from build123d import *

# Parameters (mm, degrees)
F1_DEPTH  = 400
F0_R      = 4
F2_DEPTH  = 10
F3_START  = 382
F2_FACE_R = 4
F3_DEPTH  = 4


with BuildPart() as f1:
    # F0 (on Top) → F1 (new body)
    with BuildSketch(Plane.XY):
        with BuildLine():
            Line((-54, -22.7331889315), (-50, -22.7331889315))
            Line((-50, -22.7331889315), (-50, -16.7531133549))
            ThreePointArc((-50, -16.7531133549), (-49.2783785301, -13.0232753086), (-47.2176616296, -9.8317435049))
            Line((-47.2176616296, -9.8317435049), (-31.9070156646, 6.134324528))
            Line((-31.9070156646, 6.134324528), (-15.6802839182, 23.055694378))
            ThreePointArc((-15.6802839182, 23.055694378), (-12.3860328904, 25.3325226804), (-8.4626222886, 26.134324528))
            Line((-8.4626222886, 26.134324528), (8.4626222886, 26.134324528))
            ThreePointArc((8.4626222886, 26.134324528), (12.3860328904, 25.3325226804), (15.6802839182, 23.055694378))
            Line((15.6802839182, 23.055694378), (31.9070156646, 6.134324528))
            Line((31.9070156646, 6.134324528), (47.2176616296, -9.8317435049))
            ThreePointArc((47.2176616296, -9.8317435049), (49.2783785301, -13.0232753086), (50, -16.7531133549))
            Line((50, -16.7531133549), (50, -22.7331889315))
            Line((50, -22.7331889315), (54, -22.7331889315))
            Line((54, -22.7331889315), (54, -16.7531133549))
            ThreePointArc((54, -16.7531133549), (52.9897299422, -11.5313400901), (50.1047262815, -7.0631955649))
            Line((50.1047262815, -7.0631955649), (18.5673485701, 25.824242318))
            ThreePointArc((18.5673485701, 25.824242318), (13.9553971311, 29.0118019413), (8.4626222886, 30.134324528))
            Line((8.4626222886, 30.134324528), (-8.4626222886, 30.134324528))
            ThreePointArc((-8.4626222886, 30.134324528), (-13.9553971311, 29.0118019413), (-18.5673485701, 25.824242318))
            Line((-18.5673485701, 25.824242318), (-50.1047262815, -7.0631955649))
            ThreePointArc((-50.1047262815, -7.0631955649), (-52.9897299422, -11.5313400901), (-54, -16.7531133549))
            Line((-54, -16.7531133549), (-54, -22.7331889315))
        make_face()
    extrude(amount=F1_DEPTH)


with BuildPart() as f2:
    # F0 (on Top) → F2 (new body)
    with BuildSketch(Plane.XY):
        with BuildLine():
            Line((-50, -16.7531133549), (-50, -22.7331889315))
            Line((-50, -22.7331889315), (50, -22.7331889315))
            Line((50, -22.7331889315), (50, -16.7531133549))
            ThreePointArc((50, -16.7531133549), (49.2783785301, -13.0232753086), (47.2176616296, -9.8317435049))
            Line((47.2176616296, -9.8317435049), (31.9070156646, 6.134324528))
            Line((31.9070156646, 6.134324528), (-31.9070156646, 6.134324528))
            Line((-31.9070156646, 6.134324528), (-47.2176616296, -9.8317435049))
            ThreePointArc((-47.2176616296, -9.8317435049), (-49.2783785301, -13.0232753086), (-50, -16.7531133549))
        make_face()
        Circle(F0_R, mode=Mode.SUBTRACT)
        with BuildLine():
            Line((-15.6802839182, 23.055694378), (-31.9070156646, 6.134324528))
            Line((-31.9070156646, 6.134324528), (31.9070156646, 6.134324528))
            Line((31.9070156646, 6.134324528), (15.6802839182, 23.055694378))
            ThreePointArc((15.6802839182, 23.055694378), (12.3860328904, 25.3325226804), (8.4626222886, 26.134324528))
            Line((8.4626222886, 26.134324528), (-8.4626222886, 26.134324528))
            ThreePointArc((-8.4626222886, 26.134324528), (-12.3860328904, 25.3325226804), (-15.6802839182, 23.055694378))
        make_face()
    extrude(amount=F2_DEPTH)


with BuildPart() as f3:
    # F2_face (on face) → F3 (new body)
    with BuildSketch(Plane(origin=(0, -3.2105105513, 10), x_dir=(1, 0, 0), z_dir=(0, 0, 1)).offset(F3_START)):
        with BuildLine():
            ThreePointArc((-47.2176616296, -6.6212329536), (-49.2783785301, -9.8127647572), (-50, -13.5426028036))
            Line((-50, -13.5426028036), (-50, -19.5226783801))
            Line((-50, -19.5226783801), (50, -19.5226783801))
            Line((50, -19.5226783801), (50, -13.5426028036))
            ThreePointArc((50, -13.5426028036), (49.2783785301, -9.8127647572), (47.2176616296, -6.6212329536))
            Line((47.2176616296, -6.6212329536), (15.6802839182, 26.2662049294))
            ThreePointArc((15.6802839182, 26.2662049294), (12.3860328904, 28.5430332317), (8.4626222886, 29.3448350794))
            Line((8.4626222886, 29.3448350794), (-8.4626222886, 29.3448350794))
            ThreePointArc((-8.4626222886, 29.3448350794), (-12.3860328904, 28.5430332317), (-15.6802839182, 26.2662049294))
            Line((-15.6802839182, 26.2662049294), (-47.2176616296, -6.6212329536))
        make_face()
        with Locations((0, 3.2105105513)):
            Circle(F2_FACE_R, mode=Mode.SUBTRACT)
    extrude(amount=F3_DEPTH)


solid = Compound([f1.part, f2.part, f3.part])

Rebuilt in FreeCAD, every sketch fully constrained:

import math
import FreeCAD as App
import Part
import Sketcher

doc = App.newDocument("Part")
body = doc.addObject("PartDesign::Body", "Body")

sketch1 = body.newObject("Sketcher::SketchObject", "Sketch")
sketch1.AttachmentSupport = (doc.getObject("XY_Plane"), [""])
sketch1.MapMode = "FlatFace"
sketch1.addGeometry([
    Part.LineSegment(App.Vector(-54, -22.7, 0), App.Vector(-50, -22.7, 0)),
    Part.LineSegment(App.Vector(-50, -22.7, 0), App.Vector(-50, -16.8, 0)),
    Part.ArcOfCircle(Part.Circle(App.Vector(-40, -16.8, 0), App.Vector(0, 0, 1), 10), math.radians(136), math.radians(180)),
    Part.LineSegment(App.Vector(-47.2, -9.8, 0), App.Vector(-31.9, 6.1, 0)),
    Part.LineSegment(App.Vector(-31.9, 6.1, 0), App.Vector(-15.7, 23.1, 0)),
    Part.ArcOfCircle(Part.Circle(App.Vector(-8.5, 16.1, 0), App.Vector(0, 0, 1), 10), math.radians(90), math.radians(136)),
    Part.LineSegment(App.Vector(-8.5, 26.1, 0), App.Vector(8.5, 26.1, 0)),
    Part.ArcOfCircle(Part.Circle(App.Vector(8.5, 16.1, 0), App.Vector(0, 0, 1), 10), math.radians(44), math.radians(90)),
    Part.LineSegment(App.Vector(15.7, 23.1, 0), App.Vector(31.9, 6.1, 0)),
    Part.LineSegment(App.Vector(31.9, 6.1, 0), App.Vector(47.2, -9.8, 0)),
    Part.ArcOfCircle(Part.Circle(App.Vector(40, -16.8, 0), App.Vector(0, 0, 1), 10), math.radians(0), math.radians(44)),
    Part.LineSegment(App.Vector(50, -16.8, 0), App.Vector(50, -22.7, 0)),
    Part.LineSegment(App.Vector(50, -22.7, 0), App.Vector(54, -22.7, 0)),
    Part.LineSegment(App.Vector(54, -22.7, 0), App.Vector(54, -16.8, 0)),
    Part.ArcOfCircle(Part.Circle(App.Vector(40, -16.8, 0), App.Vector(0, 0, 1), 14), math.radians(0), math.radians(44)),
    Part.LineSegment(App.Vector(50.1, -7.1, 0), App.Vector(18.6, 25.8, 0)),
    Part.ArcOfCircle(Part.Circle(App.Vector(8.5, 16.1, 0), App.Vector(0, 0, 1), 14), math.radians(44), math.radians(90)),
    Part.LineSegment(App.Vector(8.5, 30.1, 0), App.Vector(-8.5, 30.1, 0)),
    Part.ArcOfCircle(Part.Circle(App.Vector(-8.5, 16.1, 0), App.Vector(0, 0, 1), 14), math.radians(90), math.radians(136)),
    Part.LineSegment(App.Vector(-18.6, 25.8, 0), App.Vector(-50.1, -7.1, 0)),
    Part.ArcOfCircle(Part.Circle(App.Vector(-40, -16.8, 0), App.Vector(0, 0, 1), 14), math.radians(136), math.radians(180)),
    Part.LineSegment(App.Vector(-54, -16.8, 0), App.Vector(-54, -22.7, 0)),
], False)
sketch1.addConstraint([
    Sketcher.Constraint("Coincident", 0, 2, 1, 1),
    Sketcher.Constraint("Tangent", 1, 2, 2, 2),
    Sketcher.Constraint("Tangent", 2, 1, 3, 1),
    Sketcher.Constraint("Coincident", 3, 2, 4, 1),
    Sketcher.Constraint("Tangent", 4, 2, 5, 2),
    Sketcher.Constraint("Tangent", 5, 1, 6, 1),
    Sketcher.Constraint("Tangent", 6, 2, 7, 2),
    Sketcher.Constraint("Tangent", 7, 1, 8, 1),
    Sketcher.Constraint("Coincident", 8, 2, 9, 1),
    Sketcher.Constraint("Tangent", 9, 2, 10, 2),
    Sketcher.Constraint("Tangent", 10, 1, 11, 1),
    Sketcher.Constraint("Coincident", 11, 2, 12, 1),
    Sketcher.Constraint("Coincident", 12, 2, 13, 1),
    Sketcher.Constraint("Tangent", 13, 2, 14, 1),
    Sketcher.Constraint("Tangent", 14, 2, 15, 1),
    Sketcher.Constraint("Tangent", 15, 2, 16, 1),
    Sketcher.Constraint("Tangent", 16, 2, 17, 1),
    Sketcher.Constraint("Tangent", 17, 2, 18, 1),
    Sketcher.Constraint("Tangent", 18, 2, 19, 1),
    Sketcher.Constraint("Tangent", 19, 2, 20, 1),
    Sketcher.Constraint("Tangent", 20, 2, 21, 1),
    Sketcher.Constraint("Coincident", 21, 2, 0, 1),
    Sketcher.Constraint("Horizontal", 0),
    Sketcher.Constraint("Vertical", 1),
    Sketcher.Constraint("Horizontal", 6),
    Sketcher.Constraint("Vertical", 11),
    Sketcher.Constraint("Horizontal", 12),
    Sketcher.Constraint("Vertical", 13),
    Sketcher.Constraint("Horizontal", 17),
    Sketcher.Constraint("Vertical", 21),
    Sketcher.Constraint("Coincident", 14, 3, 10, 3),
    Sketcher.Constraint("Coincident", 16, 3, 7, 3),
    Sketcher.Constraint("Coincident", 18, 3, 5, 3),
    Sketcher.Constraint("Coincident", 20, 3, 2, 3),
    Sketcher.Constraint("Equal", 2, 5),
    Sketcher.Constraint("Equal", 5, 7),
    Sketcher.Constraint("Equal", 7, 10),
    Sketcher.Constraint("Equal", 14, 16),
    Sketcher.Constraint("Equal", 18, 20),
    Sketcher.Constraint("Symmetric", 2, 3, 10, 3, -2),
    Sketcher.Constraint("Symmetric", 4, 2, 7, 1, -2),
    Sketcher.Constraint("Parallel", 3, 4),
    Sketcher.Constraint("Horizontal", 3, 2, 8, 2),
    Sketcher.Constraint("Horizontal", 0, 2, 11, 2),
    Sketcher.Constraint("Radius", 2, 10.0),
    Sketcher.Constraint("Radius", 14, 14.0),
    Sketcher.Constraint("DistanceX", 2, 3, -1, 1, 40.0),
    Sketcher.Constraint("DistanceY", 3, 2, 18, 3, 10.0),
    Sketcher.Constraint("Distance", 3, 22.120832),
    Sketcher.Constraint("DistanceX", 6, 1, 6, 2, 16.925245),
    Sketcher.Constraint("DistanceY", 1, 1, 1, 2, 5.980076),
    Sketcher.Constraint("DistanceY", 0, 2, -1, 1, 22.733189),
])
pad1 = body.newObject("PartDesign::Pad", "Pad")
pad1.Profile = sketch1
pad1.Length = 400
body2 = doc.addObject("PartDesign::Body", "Body001")

sketch2 = body2.newObject("Sketcher::SketchObject", "Sketch001")
sketch2.AttachmentSupport = (doc.getObject("XY_Plane001"), [""])
sketch2.MapMode = "FlatFace"
sketch2.addGeometry([
    Part.LineSegment(App.Vector(-50, -16.8, 0), App.Vector(-50, -22.7, 0)),
    Part.LineSegment(App.Vector(-50, -22.7, 0), App.Vector(50, -22.7, 0)),
    Part.LineSegment(App.Vector(50, -22.7, 0), App.Vector(50, -16.8, 0)),
    Part.ArcOfCircle(Part.Circle(App.Vector(40, -16.8, 0), App.Vector(0, 0, 1), 10), math.radians(0), math.radians(44)),
    Part.LineSegment(App.Vector(47.2, -9.8, 0), App.Vector(31.9, 6.1, 0)),
    Part.LineSegment(App.Vector(31.9, 6.1, 0), App.Vector(15.7, 23.1, 0)),
    Part.ArcOfCircle(Part.Circle(App.Vector(8.5, 16.1, 0), App.Vector(0, 0, 1), 10), math.radians(44), math.radians(90)),
    Part.LineSegment(App.Vector(8.5, 26.1, 0), App.Vector(-8.5, 26.1, 0)),
    Part.ArcOfCircle(Part.Circle(App.Vector(-8.5, 16.1, 0), App.Vector(0, 0, 1), 10), math.radians(90), math.radians(136)),
    Part.LineSegment(App.Vector(-15.7, 23.1, 0), App.Vector(-31.9, 6.1, 0)),
    Part.LineSegment(App.Vector(-31.9, 6.1, 0), App.Vector(-47.2, -9.8, 0)),
    Part.ArcOfCircle(Part.Circle(App.Vector(-40, -16.8, 0), App.Vector(0, 0, 1), 10), math.radians(136), math.radians(180)),
    Part.Circle(App.Vector(0, 0, 0), App.Vector(0, 0, 1), 4),
], False)
sketch2.addConstraint([
    Sketcher.Constraint("Coincident", 0, 2, 1, 1),
    Sketcher.Constraint("Coincident", 1, 2, 2, 1),
    Sketcher.Constraint("Tangent", 2, 2, 3, 1),
    Sketcher.Constraint("Tangent", 3, 2, 4, 1),
    Sketcher.Constraint("Coincident", 4, 2, 5, 1),
    Sketcher.Constraint("Tangent", 5, 2, 6, 1),
    Sketcher.Constraint("Tangent", 6, 2, 7, 1),
    Sketcher.Constraint("Tangent", 7, 2, 8, 1),
    Sketcher.Constraint("Tangent", 8, 2, 9, 1),
    Sketcher.Constraint("Coincident", 9, 2, 10, 1),
    Sketcher.Constraint("Tangent", 10, 2, 11, 1),
    Sketcher.Constraint("Tangent", 11, 2, 0, 1),
    Sketcher.Constraint("Vertical", 0),
    Sketcher.Constraint("Horizontal", 1),
    Sketcher.Constraint("Vertical", 2),
    Sketcher.Constraint("Horizontal", 7),
    Sketcher.Constraint("Coincident", 12, 3, -1, 1),
    Sketcher.Constraint("Equal", 3, 6),
    Sketcher.Constraint("Equal", 6, 8),
    Sketcher.Constraint("Equal", 8, 11),
    Sketcher.Constraint("Symmetric", 3, 3, 11, 3, -2),
    Sketcher.Constraint("Symmetric", 5, 2, 8, 2, -2),
    Sketcher.Constraint("Parallel", 4, 5),
    Sketcher.Constraint("Horizontal", 4, 2, 9, 2),
    Sketcher.Constraint("Diameter", 12, 8.0),
    Sketcher.Constraint("Radius", 3, 10.0),
    Sketcher.Constraint("DistanceX", 1, 1, 1, 2, 100.0),
    Sketcher.Constraint("DistanceY", 4, 2, 6, 3, 10.0),
    Sketcher.Constraint("Distance", 4, 22.120832),
    Sketcher.Constraint("DistanceX", 7, 2, 7, 1, 16.925245),
    Sketcher.Constraint("DistanceY", 0, 2, 0, 1, 5.980076),
    Sketcher.Constraint("DistanceY", 0, 2, -1, 1, 22.733189),
])
pad2 = body2.newObject("PartDesign::Pad", "Pad001")
pad2.Profile = sketch2
pad2.Length = 10
body3 = doc.addObject("PartDesign::Body", "Body002")

sketch3 = body3.newObject("Sketcher::SketchObject", "Sketch002")
sketch3.AttachmentSupport = (doc.getObject("XY_Plane002"), [""])
sketch3.MapMode = "FlatFace"
sketch3.AttachmentOffset = App.Placement(App.Vector(0, 0, 392), App.Rotation())
sketch3.addGeometry([
    Part.ArcOfCircle(Part.Circle(App.Vector(-40, -16.8, 0), App.Vector(0, 0, 1), 10), math.radians(136), math.radians(180)),
    Part.LineSegment(App.Vector(-50, -16.8, 0), App.Vector(-50, -22.7, 0)),
    Part.LineSegment(App.Vector(-50, -22.7, 0), App.Vector(50, -22.7, 0)),
    Part.LineSegment(App.Vector(50, -22.7, 0), App.Vector(50, -16.8, 0)),
    Part.ArcOfCircle(Part.Circle(App.Vector(40, -16.8, 0), App.Vector(0, 0, 1), 10), math.radians(0), math.radians(44)),
    Part.LineSegment(App.Vector(47.2, -9.8, 0), App.Vector(15.7, 23.1, 0)),
    Part.ArcOfCircle(Part.Circle(App.Vector(8.5, 16.1, 0), App.Vector(0, 0, 1), 10), math.radians(44), math.radians(90)),
    Part.LineSegment(App.Vector(8.5, 26.1, 0), App.Vector(-8.5, 26.1, 0)),
    Part.ArcOfCircle(Part.Circle(App.Vector(-8.5, 16.1, 0), App.Vector(0, 0, 1), 10), math.radians(90), math.radians(136)),
    Part.LineSegment(App.Vector(-15.7, 23.1, 0), App.Vector(-47.2, -9.8, 0)),
    Part.Circle(App.Vector(0, 0, 0), App.Vector(0, 0, 1), 4),
], False)
sketch3.addConstraint([
    Sketcher.Constraint("Tangent", 0, 2, 1, 1),
    Sketcher.Constraint("Coincident", 1, 2, 2, 1),
    Sketcher.Constraint("Coincident", 2, 2, 3, 1),
    Sketcher.Constraint("Tangent", 3, 2, 4, 1),
    Sketcher.Constraint("Tangent", 4, 2, 5, 1),
    Sketcher.Constraint("Tangent", 5, 2, 6, 1),
    Sketcher.Constraint("Tangent", 6, 2, 7, 1),
    Sketcher.Constraint("Tangent", 7, 2, 8, 1),
    Sketcher.Constraint("Tangent", 8, 2, 9, 1),
    Sketcher.Constraint("Tangent", 9, 2, 0, 1),
    Sketcher.Constraint("Vertical", 1),
    Sketcher.Constraint("Horizontal", 2),
    Sketcher.Constraint("Vertical", 3),
    Sketcher.Constraint("Horizontal", 7),
    Sketcher.Constraint("Coincident", 10, 3, -1, 1),
    Sketcher.Constraint("Equal", 0, 4),
    Sketcher.Constraint("Equal", 4, 6),
    Sketcher.Constraint("Equal", 6, 8),
    Sketcher.Constraint("Symmetric", 0, 3, 4, 3, -2),
    Sketcher.Constraint("Horizontal", 5, 2, 8, 2),
    Sketcher.Constraint("Diameter", 10, 8.0),
    Sketcher.Constraint("Radius", 0, 10.0),
    Sketcher.Constraint("DistanceX", 2, 1, 2, 2, 100.0),
    Sketcher.Constraint("DistanceX", 7, 2, 7, 1, 16.925245),
    Sketcher.Constraint("DistanceY", 1, 2, 1, 1, 5.980076),
    Sketcher.Constraint("DistanceY", 1, 2, -1, 1, 22.733189),
    Sketcher.Constraint("DistanceX", -1, 1, 4, 2, 47.217662),
])
pad3 = body3.newObject("PartDesign::Pad", "Pad002")
pad3.Profile = sketch3
pad3.Length = 4

doc.recompute()
